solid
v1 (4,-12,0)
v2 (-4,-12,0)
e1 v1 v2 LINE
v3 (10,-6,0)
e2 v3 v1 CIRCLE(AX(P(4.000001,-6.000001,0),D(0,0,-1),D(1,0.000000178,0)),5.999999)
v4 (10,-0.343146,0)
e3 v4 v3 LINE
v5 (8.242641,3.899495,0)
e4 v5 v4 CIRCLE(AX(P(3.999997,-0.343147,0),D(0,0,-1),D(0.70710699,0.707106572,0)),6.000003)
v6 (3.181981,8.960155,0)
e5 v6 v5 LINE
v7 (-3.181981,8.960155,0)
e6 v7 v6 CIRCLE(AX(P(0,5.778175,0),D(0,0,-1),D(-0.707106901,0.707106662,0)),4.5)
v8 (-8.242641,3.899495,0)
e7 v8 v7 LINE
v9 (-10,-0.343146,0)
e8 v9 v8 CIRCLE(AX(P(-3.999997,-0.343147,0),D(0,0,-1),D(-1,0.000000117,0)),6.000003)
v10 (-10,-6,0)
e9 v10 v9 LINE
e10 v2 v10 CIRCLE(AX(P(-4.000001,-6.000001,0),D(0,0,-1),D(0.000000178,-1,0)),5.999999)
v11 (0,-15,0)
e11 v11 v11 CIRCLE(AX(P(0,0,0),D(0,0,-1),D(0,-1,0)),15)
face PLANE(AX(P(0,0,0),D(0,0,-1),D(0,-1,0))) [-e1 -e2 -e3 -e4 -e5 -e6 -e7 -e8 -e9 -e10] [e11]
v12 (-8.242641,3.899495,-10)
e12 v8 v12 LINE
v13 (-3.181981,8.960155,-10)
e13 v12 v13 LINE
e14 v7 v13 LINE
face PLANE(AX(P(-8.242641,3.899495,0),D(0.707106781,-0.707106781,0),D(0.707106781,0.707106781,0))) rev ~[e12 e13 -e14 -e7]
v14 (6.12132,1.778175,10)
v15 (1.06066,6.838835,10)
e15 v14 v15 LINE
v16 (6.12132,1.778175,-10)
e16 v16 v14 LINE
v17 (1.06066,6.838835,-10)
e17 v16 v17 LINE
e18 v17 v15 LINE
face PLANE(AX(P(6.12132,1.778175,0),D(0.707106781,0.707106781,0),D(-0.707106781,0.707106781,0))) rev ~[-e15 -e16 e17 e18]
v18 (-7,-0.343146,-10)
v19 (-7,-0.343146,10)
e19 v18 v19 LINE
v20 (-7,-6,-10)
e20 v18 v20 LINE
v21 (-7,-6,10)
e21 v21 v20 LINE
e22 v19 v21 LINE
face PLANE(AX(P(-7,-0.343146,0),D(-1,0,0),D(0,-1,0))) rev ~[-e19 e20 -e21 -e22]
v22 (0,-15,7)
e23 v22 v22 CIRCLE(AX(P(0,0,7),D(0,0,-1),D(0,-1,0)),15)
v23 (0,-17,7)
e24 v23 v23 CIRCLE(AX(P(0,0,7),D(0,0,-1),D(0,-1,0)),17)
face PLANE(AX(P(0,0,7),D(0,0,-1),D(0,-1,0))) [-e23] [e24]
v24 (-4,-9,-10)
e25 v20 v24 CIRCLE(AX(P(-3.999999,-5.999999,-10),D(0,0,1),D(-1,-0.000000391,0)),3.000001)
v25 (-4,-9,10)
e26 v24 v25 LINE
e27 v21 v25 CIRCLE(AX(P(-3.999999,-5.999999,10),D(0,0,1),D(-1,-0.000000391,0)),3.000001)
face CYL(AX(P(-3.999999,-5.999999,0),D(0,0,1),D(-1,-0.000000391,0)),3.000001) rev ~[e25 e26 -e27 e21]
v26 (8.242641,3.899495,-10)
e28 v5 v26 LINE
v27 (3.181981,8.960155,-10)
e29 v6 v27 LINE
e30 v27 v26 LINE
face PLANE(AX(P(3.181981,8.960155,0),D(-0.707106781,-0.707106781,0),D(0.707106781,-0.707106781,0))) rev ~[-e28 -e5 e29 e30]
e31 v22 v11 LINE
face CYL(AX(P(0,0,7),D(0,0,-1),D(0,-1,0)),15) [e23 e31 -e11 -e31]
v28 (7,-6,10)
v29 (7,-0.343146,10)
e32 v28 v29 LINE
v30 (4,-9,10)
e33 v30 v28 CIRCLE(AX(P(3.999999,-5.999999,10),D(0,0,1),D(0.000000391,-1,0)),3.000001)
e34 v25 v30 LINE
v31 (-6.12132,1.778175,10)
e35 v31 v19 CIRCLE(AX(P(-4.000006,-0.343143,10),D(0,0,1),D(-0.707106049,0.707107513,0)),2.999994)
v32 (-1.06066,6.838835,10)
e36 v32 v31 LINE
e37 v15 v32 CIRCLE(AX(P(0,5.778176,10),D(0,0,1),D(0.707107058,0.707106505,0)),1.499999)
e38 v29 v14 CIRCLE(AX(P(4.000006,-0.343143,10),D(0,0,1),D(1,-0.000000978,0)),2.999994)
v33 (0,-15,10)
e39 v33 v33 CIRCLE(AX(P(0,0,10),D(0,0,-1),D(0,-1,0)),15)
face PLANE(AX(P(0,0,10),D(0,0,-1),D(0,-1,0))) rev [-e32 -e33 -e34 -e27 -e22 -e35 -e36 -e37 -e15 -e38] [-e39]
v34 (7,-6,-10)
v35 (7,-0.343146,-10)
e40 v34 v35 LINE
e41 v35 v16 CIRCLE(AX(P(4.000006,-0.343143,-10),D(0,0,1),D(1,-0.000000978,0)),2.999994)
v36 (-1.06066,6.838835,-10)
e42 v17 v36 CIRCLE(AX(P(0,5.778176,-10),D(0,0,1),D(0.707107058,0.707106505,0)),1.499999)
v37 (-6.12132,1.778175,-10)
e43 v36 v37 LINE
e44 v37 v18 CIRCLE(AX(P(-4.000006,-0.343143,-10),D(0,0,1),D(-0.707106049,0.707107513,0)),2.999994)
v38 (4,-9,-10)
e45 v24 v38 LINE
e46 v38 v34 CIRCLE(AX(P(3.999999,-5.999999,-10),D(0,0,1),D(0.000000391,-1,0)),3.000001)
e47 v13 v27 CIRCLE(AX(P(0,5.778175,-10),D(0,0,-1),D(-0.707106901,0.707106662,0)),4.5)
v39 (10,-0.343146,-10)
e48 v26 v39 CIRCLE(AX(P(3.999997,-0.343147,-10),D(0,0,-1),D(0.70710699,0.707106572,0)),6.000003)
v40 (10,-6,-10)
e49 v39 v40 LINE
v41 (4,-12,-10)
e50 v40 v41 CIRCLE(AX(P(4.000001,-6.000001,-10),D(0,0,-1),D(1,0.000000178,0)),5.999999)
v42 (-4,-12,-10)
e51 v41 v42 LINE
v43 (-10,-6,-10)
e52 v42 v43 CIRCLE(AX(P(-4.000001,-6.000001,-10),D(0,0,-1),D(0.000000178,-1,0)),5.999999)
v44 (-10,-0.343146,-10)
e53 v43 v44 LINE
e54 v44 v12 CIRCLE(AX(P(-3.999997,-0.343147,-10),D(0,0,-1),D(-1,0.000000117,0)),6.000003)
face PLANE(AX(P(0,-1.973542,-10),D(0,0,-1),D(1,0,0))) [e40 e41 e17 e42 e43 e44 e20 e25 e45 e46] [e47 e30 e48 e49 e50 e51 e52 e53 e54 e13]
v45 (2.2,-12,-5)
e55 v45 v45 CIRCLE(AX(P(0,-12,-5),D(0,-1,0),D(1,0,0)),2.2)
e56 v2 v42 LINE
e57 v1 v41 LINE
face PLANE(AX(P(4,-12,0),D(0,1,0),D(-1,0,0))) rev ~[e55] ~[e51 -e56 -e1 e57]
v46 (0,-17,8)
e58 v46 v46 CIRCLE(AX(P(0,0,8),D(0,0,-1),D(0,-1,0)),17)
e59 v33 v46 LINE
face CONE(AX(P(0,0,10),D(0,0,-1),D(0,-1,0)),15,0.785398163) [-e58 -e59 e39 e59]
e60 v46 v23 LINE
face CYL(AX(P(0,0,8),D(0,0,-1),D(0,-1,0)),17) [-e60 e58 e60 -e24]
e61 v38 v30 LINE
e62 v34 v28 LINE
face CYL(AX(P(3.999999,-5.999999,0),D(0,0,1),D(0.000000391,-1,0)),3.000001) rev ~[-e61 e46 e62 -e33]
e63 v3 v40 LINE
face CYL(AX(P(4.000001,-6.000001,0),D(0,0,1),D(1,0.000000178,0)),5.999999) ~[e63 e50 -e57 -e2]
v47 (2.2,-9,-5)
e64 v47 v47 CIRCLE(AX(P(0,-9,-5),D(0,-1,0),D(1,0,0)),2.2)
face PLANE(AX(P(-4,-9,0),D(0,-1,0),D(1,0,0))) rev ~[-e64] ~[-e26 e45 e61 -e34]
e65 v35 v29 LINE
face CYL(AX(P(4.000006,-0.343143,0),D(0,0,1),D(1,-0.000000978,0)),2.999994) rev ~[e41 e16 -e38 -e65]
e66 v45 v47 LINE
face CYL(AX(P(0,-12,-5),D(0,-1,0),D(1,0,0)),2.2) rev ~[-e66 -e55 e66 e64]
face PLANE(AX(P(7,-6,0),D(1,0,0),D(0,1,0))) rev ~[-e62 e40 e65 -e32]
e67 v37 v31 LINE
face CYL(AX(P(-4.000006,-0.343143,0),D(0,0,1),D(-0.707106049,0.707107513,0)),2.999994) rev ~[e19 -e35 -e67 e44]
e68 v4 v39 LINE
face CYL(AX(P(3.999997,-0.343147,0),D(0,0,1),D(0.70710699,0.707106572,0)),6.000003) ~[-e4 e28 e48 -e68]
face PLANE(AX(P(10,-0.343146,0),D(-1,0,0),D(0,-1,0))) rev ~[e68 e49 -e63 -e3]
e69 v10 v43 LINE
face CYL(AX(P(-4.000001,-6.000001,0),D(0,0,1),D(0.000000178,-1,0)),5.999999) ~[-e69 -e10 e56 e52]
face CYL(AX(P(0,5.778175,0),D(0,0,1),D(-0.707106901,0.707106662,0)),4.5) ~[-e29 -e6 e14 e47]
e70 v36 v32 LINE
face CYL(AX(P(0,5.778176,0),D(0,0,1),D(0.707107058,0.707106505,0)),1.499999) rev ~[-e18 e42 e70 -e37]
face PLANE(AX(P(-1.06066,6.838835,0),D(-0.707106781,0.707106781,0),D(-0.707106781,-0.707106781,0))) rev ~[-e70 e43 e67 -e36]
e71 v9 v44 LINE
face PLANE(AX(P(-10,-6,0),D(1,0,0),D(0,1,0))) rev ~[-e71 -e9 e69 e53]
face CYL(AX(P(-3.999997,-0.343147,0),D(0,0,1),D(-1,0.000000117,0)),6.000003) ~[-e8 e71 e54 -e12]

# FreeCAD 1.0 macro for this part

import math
import FreeCAD as App
import Part
import Sketcher

doc = App.newDocument("Part")
body = doc.addObject("PartDesign::Body", "Body")

# Sketch on YZ plane
sketch1 = body.newObject("Sketcher::SketchObject", "Sketch")
sketch1.AttachmentSupport = (doc.getObject("YZ_Plane"), [""])
sketch1.MapMode = "FlatFace"
sketch1.addGeometry([
    Part.LineSegment(App.Vector(-15, 0, 0), App.Vector(0, 0, 0)),  # 0
    Part.LineSegment(App.Vector(0, 0, 0), App.Vector(0, 10, 0)),  # 1
    Part.LineSegment(App.Vector(0, 10, 0), App.Vector(-15, 10, 0)),  # 2
    Part.LineSegment(App.Vector(-15, 10, 0), App.Vector(-17, 8, 0)),  # 3
    Part.LineSegment(App.Vector(-17, 8, 0), App.Vector(-17, 7, 0)),  # 4
    Part.LineSegment(App.Vector(-17, 7, 0), App.Vector(-15, 7, 0)),  # 5
    Part.LineSegment(App.Vector(-15, 7, 0), App.Vector(-15, 0, 0)),  # 6
], False)
sketch1.addConstraint([
    Sketcher.Constraint("Coincident", 0, 2, 1, 1),
    Sketcher.Constraint("Coincident", 1, 2, 2, 1),
    Sketcher.Constraint("Coincident", 2, 2, 3, 1),
    Sketcher.Constraint("Coincident", 3, 2, 4, 1),
    Sketcher.Constraint("Coincident", 4, 2, 5, 1),
    Sketcher.Constraint("Coincident", 5, 2, 6, 1),
    Sketcher.Constraint("Coincident", 6, 2, 0, 1),
    Sketcher.Constraint("Horizontal", 0),
    Sketcher.Constraint("Vertical", 1),
    Sketcher.Constraint("Horizontal", 2),
    Sketcher.Constraint("Vertical", 4),
    Sketcher.Constraint("Horizontal", 5),
    Sketcher.Constraint("Vertical", 6),
    Sketcher.Constraint("Coincident", 0, 2, -1, 1),
    Sketcher.Constraint("Vertical", 2, 2, 5, 2),
    Sketcher.Constraint("DistanceX", 0, 1, 0, 2, 15.0),
    Sketcher.Constraint("DistanceX", 5, 1, 5, 2, 2.0),
    Sketcher.Constraint("DistanceY", 1, 1, 1, 2, 10.0),
    Sketcher.Constraint("DistanceY", 4, 2, 4, 1, 1.0),
    Sketcher.Constraint("DistanceY", 6, 2, 6, 1, 7.0),
])
revolution = body.newObject("PartDesign::Revolution", "Revolution")
revolution.Profile = sketch1
revolution.ReferenceAxis = (sketch1, ["V_Axis"])
revolution.Angle = 360

# Sketch on XY plane
sketch2 = body.newObject("Sketcher::SketchObject", "Sketch001")
sketch2.AttachmentSupport = (doc.getObject("XY_Plane"), [""])
sketch2.MapMode = "FlatFace"
sketch2.AttachmentOffset = App.Placement(App.Vector(0, 0, 10), App.Rotation())
sketch2.addGeometry([
    Part.LineSegment(App.Vector(-7, -0.3, 0), App.Vector(-7, -6, 0)),  # 0
    Part.ArcOfCircle(Part.Circle(App.Vector(-4, -6, 0), App.Vector(0, 0, 1), 3), math.radians(-180), math.radians(-90)),  # 1
    Part.LineSegment(App.Vector(-4, -9, 0), App.Vector(4, -9, 0)),  # 2
    Part.ArcOfCircle(Part.Circle(App.Vector(4, -6, 0), App.Vector(0, 0, 1), 3), math.radians(-90), math.radians(0)),  # 3
    Part.LineSegment(App.Vector(7, -6, 0), App.Vector(7, -0.3, 0)),  # 4
    Part.ArcOfCircle(Part.Circle(App.Vector(4, -0.3, 0), App.Vector(0, 0, 1), 3), math.radians(0), math.radians(45)),  # 5
    Part.LineSegment(App.Vector(6.1, 1.8, 0), App.Vector(1.1, 6.8, 0)),  # 6
    Part.ArcOfCircle(Part.Circle(App.Vector(0, 5.8, 0), App.Vector(0, 0, 1), 1.5), math.radians(45), math.radians(135)),  # 7
    Part.LineSegment(App.Vector(-1.1, 6.8, 0), App.Vector(-6.1, 1.8, 0)),  # 8
    Part.ArcOfCircle(Part.Circle(App.Vector(-4, -0.3, 0), App.Vector(0, 0, 1), 3), math.radians(135), math.radians(180)),  # 9
], False)
sketch2.addConstraint([
    Sketcher.Constraint("Tangent", 0, 2, 1, 1),
    Sketcher.Constraint("Tangent", 1, 2, 2, 1),
    Sketcher.Constraint("Tangent", 2, 2, 3, 1),
    Sketcher.Constraint("Tangent", 3, 2, 4, 1),
    Sketcher.Constraint("Tangent", 4, 2, 5, 1),
    Sketcher.Constraint("Tangent", 5, 2, 6, 1),
    Sketcher.Constraint("Tangent", 6, 2, 7, 1),
    Sketcher.Constraint("Tangent", 7, 2, 8, 1),
    Sketcher.Constraint("Tangent", 8, 2, 9, 1),
    Sketcher.Constraint("Tangent", 9, 2, 0, 1),
    Sketcher.Constraint("Vertical", 0),
    Sketcher.Constraint("Horizontal", 2),
    Sketcher.Constraint("Vertical", 4),
    Sketcher.Constraint("Equal", 1, 3),
    Sketcher.Constraint("Equal", 5, 9),
    Sketcher.Constraint("Symmetric", 5, 3, 9, 3, -2),
    Sketcher.Constraint("PointOnObject", 7, 3, -2),
    Sketcher.Constraint("Perpendicular", 6, 8),
    Sketcher.Constraint("Radius", 1, 3.000001),
    Sketcher.Constraint("Radius", 7, 1.499999),
    Sketcher.Constraint("DistanceX", 2, 1, 2, 2, 8.0),
    Sketcher.Constraint("DistanceY", 1, 3, -1, 1, 5.999999),
    Sketcher.Constraint("DistanceY", 5, 2, 7, 3, 4.000001),
    Sketcher.Constraint("DistanceY", 0, 2, 0, 1, 5.656854),
])
pocket1 = body.newObject("PartDesign::Pocket", "Pocket")
pocket1.Profile = sketch2
pocket1.Type = "ThroughAll"

# Sketch on XY plane
sketch3 = body.newObject("Sketcher::SketchObject", "Sketch002")
sketch3.AttachmentSupport = (doc.getObject("XY_Plane"), [""])
sketch3.MapMode = "FlatFace"
sketch3.addGeometry([
    Part.LineSegment(App.Vector(4, -12, 0), App.Vector(-4, -12, 0)),  # 0
    Part.ArcOfCircle(Part.Circle(App.Vector(-4, -6, 0), App.Vector(0, 0, 1), 6), math.radians(180), math.radians(270)),  # 1
    Part.LineSegment(App.Vector(-10, -6, 0), App.Vector(-10, -0.3, 0)),  # 2
    Part.ArcOfCircle(Part.Circle(App.Vector(-4, -0.3, 0), App.Vector(0, 0, 1), 6), math.radians(135), math.radians(180)),  # 3
    Part.LineSegment(App.Vector(-8.2, 3.9, 0), App.Vector(-3.2, 9, 0)),  # 4
    Part.ArcOfCircle(Part.Circle(App.Vector(0, 5.8, 0), App.Vector(0, 0, 1), 4.5), math.radians(45), math.radians(135)),  # 5
    Part.LineSegment(App.Vector(3.2, 9, 0), App.Vector(8.2, 3.9, 0)),  # 6
    Part.ArcOfCircle(Part.Circle(App.Vector(4, -0.3, 0), App.Vector(0, 0, 1), 6), math.radians(0), math.radians(45)),  # 7
    Part.LineSegment(App.Vector(10, -0.3, 0), App.Vector(10, -6, 0)),  # 8
    Part.ArcOfCircle(Part.Circle(App.Vector(4, -6, 0), App.Vector(0, 0, 1), 6), math.radians(-90), math.radians(0)),  # 9
    Part.LineSegment(App.Vector(-7, -0.3, 0), App.Vector(-7, -6, 0)),  # 10
    Part.ArcOfCircle(Part.Circle(App.Vector(-4, -6, 0), App.Vector(0, 0, 1), 3), math.radians(-180), math.radians(-90)),  # 11
    Part.LineSegment(App.Vector(-4, -9, 0), App.Vector(4, -9, 0)),  # 12
    Part.ArcOfCircle(Part.Circle(App.Vector(4, -6, 0), App.Vector(0, 0, 1), 3), math.radians(-90), math.radians(0)),  # 13
    Part.LineSegment(App.Vector(7, -6, 0), App.Vector(7, -0.3, 0)),  # 14
    Part.ArcOfCircle(Part.Circle(App.Vector(4, -0.3, 0), App.Vector(0, 0, 1), 3), math.radians(0), math.radians(45)),  # 15
    Part.LineSegment(App.Vector(6.1, 1.8, 0), App.Vector(1.1, 6.8, 0)),  # 16
    Part.ArcOfCircle(Part.Circle(App.Vector(0, 5.8, 0), App.Vector(0, 0, 1), 1.5), math.radians(45), math.radians(135)),  # 17
    Part.LineSegment(App.Vector(-1.1, 6.8, 0), App.Vector(-6.1, 1.8, 0)),  # 18
    Part.ArcOfCircle(Part.Circle(App.Vector(-4, -0.3, 0), App.Vector(0, 0, 1), 3), math.radians(135), math.radians(180)),  # 19
], False)
sketch3.addConstraint([
    Sketcher.Constraint("Tangent", 0, 2, 1, 2),
    Sketcher.Constraint("Tangent", 1, 1, 2, 1),
    Sketcher.Constraint("Tangent", 2, 2, 3, 2),
    Sketcher.Constraint("Tangent", 3, 1, 4, 1),
    Sketcher.Constraint("Tangent", 4, 2, 5, 2),
    Sketcher.Constraint("Tangent", 5, 1, 6, 1),
    Sketcher.Constraint("Tangent", 6, 2, 7, 2),
    Sketcher.Constraint("Tangent", 7, 1, 8, 1),
    Sketcher.Constraint("Tangent", 8, 2, 9, 2),
    Sketcher.Constraint("Tangent", 9, 1, 0, 1),
    Sketcher.Constraint("Tangent", 10, 2, 11, 1),
    Sketcher.Constraint("Tangent", 11, 2, 12, 1),
    Sketcher.Constraint("Tangent", 12, 2, 13, 1),
    Sketcher.Constraint("Tangent", 13, 2, 14, 1),
    Sketcher.Constraint("Tangent", 14, 2, 15, 1),
    Sketcher.Constraint("Tangent", 15, 2, 16, 1),
    Sketcher.Constraint("Tangent", 16, 2, 17, 1),
    Sketcher.Constraint("Tangent", 17, 2, 18, 1),
    Sketcher.Constraint("Tangent", 18, 2, 19, 1),
    Sketcher.Constraint("Tangent", 19, 2, 10, 1),
    Sketcher.Constraint("Horizontal", 0),
    Sketcher.Constraint("Vertical", 2),
    Sketcher.Constraint("Vertical", 8),
    Sketcher.Constraint("Vertical", 10),
    Sketcher.Constraint("Horizontal", 12),
    Sketcher.Constraint("Vertical", 14),
    Sketcher.Constraint("Coincident", 11, 3, 1, 3),
    Sketcher.Constraint("Coincident", 13, 3, 9, 3),
    Sketcher.Constraint("Coincident", 17, 3, 5, 3),
    Sketcher.Constraint("Equal", 3, 7),
    Sketcher.Constraint("Equal", 1, 9),
    Sketcher.Constraint("Equal", 15, 19),
    Sketcher.Constraint("Symmetric", 3, 3, 7, 3, -2),
    Sketcher.Constraint("Symmetric", 16, 2, 17, 2, -2),
    Sketcher.Constraint("Perpendicular", 4, 6),
    Sketcher.Constraint("Parallel", 6, 16),
    Sketcher.Constraint("Horizontal", 7, 1, 14, 2),
    Sketcher.Constraint("Equal", 6, 16),
    Sketcher.Constraint("Radius", 1, 5.999999),
    Sketcher.Constraint("Radius", 11, 3.000001),
    Sketcher.Constraint("Radius", 5, 4.5),
    Sketcher.Constraint("DistanceX", 0, 2, 0, 1, 8.0),
    Sketcher.Constraint("DistanceY", 1, 3, -1, 1, 6.000001),
    Sketcher.Constraint("Radius", 3, 6.000003),
    Sketcher.Constraint("DistanceY", 2, 1, 2, 2, 5.656854),
])
pad1 = body.newObject("PartDesign::Pad", "Pad")
pad1.Profile = sketch3
pad1.Length = 10
pad1.Reversed = True

# Sketch on XZ plane
sketch4 = body.newObject("Sketcher::SketchObject", "Sketch003")
sketch4.AttachmentSupport = (doc.getObject("XZ_Plane"), [""])
sketch4.MapMode = "FlatFace"
sketch4.AttachmentOffset = App.Placement(App.Vector(0, 0, 12), App.Rotation())
sketch4.addGeometry(Part.Circle(App.Vector(0, -5, 0), App.Vector(0, 0, 1), 2.2), False)
sketch4.addConstraint([
    Sketcher.Constraint("PointOnObject", 0, 3, -2),
    Sketcher.Constraint("Diameter", 0, 4.4),
    Sketcher.Constraint("DistanceY", 0, 3, -1, 1, 5.0),
])
pocket2 = body.newObject("PartDesign::Pocket", "Pocket001")
pocket2.Profile = sketch4
pocket2.Length = 3

doc.recompute()
